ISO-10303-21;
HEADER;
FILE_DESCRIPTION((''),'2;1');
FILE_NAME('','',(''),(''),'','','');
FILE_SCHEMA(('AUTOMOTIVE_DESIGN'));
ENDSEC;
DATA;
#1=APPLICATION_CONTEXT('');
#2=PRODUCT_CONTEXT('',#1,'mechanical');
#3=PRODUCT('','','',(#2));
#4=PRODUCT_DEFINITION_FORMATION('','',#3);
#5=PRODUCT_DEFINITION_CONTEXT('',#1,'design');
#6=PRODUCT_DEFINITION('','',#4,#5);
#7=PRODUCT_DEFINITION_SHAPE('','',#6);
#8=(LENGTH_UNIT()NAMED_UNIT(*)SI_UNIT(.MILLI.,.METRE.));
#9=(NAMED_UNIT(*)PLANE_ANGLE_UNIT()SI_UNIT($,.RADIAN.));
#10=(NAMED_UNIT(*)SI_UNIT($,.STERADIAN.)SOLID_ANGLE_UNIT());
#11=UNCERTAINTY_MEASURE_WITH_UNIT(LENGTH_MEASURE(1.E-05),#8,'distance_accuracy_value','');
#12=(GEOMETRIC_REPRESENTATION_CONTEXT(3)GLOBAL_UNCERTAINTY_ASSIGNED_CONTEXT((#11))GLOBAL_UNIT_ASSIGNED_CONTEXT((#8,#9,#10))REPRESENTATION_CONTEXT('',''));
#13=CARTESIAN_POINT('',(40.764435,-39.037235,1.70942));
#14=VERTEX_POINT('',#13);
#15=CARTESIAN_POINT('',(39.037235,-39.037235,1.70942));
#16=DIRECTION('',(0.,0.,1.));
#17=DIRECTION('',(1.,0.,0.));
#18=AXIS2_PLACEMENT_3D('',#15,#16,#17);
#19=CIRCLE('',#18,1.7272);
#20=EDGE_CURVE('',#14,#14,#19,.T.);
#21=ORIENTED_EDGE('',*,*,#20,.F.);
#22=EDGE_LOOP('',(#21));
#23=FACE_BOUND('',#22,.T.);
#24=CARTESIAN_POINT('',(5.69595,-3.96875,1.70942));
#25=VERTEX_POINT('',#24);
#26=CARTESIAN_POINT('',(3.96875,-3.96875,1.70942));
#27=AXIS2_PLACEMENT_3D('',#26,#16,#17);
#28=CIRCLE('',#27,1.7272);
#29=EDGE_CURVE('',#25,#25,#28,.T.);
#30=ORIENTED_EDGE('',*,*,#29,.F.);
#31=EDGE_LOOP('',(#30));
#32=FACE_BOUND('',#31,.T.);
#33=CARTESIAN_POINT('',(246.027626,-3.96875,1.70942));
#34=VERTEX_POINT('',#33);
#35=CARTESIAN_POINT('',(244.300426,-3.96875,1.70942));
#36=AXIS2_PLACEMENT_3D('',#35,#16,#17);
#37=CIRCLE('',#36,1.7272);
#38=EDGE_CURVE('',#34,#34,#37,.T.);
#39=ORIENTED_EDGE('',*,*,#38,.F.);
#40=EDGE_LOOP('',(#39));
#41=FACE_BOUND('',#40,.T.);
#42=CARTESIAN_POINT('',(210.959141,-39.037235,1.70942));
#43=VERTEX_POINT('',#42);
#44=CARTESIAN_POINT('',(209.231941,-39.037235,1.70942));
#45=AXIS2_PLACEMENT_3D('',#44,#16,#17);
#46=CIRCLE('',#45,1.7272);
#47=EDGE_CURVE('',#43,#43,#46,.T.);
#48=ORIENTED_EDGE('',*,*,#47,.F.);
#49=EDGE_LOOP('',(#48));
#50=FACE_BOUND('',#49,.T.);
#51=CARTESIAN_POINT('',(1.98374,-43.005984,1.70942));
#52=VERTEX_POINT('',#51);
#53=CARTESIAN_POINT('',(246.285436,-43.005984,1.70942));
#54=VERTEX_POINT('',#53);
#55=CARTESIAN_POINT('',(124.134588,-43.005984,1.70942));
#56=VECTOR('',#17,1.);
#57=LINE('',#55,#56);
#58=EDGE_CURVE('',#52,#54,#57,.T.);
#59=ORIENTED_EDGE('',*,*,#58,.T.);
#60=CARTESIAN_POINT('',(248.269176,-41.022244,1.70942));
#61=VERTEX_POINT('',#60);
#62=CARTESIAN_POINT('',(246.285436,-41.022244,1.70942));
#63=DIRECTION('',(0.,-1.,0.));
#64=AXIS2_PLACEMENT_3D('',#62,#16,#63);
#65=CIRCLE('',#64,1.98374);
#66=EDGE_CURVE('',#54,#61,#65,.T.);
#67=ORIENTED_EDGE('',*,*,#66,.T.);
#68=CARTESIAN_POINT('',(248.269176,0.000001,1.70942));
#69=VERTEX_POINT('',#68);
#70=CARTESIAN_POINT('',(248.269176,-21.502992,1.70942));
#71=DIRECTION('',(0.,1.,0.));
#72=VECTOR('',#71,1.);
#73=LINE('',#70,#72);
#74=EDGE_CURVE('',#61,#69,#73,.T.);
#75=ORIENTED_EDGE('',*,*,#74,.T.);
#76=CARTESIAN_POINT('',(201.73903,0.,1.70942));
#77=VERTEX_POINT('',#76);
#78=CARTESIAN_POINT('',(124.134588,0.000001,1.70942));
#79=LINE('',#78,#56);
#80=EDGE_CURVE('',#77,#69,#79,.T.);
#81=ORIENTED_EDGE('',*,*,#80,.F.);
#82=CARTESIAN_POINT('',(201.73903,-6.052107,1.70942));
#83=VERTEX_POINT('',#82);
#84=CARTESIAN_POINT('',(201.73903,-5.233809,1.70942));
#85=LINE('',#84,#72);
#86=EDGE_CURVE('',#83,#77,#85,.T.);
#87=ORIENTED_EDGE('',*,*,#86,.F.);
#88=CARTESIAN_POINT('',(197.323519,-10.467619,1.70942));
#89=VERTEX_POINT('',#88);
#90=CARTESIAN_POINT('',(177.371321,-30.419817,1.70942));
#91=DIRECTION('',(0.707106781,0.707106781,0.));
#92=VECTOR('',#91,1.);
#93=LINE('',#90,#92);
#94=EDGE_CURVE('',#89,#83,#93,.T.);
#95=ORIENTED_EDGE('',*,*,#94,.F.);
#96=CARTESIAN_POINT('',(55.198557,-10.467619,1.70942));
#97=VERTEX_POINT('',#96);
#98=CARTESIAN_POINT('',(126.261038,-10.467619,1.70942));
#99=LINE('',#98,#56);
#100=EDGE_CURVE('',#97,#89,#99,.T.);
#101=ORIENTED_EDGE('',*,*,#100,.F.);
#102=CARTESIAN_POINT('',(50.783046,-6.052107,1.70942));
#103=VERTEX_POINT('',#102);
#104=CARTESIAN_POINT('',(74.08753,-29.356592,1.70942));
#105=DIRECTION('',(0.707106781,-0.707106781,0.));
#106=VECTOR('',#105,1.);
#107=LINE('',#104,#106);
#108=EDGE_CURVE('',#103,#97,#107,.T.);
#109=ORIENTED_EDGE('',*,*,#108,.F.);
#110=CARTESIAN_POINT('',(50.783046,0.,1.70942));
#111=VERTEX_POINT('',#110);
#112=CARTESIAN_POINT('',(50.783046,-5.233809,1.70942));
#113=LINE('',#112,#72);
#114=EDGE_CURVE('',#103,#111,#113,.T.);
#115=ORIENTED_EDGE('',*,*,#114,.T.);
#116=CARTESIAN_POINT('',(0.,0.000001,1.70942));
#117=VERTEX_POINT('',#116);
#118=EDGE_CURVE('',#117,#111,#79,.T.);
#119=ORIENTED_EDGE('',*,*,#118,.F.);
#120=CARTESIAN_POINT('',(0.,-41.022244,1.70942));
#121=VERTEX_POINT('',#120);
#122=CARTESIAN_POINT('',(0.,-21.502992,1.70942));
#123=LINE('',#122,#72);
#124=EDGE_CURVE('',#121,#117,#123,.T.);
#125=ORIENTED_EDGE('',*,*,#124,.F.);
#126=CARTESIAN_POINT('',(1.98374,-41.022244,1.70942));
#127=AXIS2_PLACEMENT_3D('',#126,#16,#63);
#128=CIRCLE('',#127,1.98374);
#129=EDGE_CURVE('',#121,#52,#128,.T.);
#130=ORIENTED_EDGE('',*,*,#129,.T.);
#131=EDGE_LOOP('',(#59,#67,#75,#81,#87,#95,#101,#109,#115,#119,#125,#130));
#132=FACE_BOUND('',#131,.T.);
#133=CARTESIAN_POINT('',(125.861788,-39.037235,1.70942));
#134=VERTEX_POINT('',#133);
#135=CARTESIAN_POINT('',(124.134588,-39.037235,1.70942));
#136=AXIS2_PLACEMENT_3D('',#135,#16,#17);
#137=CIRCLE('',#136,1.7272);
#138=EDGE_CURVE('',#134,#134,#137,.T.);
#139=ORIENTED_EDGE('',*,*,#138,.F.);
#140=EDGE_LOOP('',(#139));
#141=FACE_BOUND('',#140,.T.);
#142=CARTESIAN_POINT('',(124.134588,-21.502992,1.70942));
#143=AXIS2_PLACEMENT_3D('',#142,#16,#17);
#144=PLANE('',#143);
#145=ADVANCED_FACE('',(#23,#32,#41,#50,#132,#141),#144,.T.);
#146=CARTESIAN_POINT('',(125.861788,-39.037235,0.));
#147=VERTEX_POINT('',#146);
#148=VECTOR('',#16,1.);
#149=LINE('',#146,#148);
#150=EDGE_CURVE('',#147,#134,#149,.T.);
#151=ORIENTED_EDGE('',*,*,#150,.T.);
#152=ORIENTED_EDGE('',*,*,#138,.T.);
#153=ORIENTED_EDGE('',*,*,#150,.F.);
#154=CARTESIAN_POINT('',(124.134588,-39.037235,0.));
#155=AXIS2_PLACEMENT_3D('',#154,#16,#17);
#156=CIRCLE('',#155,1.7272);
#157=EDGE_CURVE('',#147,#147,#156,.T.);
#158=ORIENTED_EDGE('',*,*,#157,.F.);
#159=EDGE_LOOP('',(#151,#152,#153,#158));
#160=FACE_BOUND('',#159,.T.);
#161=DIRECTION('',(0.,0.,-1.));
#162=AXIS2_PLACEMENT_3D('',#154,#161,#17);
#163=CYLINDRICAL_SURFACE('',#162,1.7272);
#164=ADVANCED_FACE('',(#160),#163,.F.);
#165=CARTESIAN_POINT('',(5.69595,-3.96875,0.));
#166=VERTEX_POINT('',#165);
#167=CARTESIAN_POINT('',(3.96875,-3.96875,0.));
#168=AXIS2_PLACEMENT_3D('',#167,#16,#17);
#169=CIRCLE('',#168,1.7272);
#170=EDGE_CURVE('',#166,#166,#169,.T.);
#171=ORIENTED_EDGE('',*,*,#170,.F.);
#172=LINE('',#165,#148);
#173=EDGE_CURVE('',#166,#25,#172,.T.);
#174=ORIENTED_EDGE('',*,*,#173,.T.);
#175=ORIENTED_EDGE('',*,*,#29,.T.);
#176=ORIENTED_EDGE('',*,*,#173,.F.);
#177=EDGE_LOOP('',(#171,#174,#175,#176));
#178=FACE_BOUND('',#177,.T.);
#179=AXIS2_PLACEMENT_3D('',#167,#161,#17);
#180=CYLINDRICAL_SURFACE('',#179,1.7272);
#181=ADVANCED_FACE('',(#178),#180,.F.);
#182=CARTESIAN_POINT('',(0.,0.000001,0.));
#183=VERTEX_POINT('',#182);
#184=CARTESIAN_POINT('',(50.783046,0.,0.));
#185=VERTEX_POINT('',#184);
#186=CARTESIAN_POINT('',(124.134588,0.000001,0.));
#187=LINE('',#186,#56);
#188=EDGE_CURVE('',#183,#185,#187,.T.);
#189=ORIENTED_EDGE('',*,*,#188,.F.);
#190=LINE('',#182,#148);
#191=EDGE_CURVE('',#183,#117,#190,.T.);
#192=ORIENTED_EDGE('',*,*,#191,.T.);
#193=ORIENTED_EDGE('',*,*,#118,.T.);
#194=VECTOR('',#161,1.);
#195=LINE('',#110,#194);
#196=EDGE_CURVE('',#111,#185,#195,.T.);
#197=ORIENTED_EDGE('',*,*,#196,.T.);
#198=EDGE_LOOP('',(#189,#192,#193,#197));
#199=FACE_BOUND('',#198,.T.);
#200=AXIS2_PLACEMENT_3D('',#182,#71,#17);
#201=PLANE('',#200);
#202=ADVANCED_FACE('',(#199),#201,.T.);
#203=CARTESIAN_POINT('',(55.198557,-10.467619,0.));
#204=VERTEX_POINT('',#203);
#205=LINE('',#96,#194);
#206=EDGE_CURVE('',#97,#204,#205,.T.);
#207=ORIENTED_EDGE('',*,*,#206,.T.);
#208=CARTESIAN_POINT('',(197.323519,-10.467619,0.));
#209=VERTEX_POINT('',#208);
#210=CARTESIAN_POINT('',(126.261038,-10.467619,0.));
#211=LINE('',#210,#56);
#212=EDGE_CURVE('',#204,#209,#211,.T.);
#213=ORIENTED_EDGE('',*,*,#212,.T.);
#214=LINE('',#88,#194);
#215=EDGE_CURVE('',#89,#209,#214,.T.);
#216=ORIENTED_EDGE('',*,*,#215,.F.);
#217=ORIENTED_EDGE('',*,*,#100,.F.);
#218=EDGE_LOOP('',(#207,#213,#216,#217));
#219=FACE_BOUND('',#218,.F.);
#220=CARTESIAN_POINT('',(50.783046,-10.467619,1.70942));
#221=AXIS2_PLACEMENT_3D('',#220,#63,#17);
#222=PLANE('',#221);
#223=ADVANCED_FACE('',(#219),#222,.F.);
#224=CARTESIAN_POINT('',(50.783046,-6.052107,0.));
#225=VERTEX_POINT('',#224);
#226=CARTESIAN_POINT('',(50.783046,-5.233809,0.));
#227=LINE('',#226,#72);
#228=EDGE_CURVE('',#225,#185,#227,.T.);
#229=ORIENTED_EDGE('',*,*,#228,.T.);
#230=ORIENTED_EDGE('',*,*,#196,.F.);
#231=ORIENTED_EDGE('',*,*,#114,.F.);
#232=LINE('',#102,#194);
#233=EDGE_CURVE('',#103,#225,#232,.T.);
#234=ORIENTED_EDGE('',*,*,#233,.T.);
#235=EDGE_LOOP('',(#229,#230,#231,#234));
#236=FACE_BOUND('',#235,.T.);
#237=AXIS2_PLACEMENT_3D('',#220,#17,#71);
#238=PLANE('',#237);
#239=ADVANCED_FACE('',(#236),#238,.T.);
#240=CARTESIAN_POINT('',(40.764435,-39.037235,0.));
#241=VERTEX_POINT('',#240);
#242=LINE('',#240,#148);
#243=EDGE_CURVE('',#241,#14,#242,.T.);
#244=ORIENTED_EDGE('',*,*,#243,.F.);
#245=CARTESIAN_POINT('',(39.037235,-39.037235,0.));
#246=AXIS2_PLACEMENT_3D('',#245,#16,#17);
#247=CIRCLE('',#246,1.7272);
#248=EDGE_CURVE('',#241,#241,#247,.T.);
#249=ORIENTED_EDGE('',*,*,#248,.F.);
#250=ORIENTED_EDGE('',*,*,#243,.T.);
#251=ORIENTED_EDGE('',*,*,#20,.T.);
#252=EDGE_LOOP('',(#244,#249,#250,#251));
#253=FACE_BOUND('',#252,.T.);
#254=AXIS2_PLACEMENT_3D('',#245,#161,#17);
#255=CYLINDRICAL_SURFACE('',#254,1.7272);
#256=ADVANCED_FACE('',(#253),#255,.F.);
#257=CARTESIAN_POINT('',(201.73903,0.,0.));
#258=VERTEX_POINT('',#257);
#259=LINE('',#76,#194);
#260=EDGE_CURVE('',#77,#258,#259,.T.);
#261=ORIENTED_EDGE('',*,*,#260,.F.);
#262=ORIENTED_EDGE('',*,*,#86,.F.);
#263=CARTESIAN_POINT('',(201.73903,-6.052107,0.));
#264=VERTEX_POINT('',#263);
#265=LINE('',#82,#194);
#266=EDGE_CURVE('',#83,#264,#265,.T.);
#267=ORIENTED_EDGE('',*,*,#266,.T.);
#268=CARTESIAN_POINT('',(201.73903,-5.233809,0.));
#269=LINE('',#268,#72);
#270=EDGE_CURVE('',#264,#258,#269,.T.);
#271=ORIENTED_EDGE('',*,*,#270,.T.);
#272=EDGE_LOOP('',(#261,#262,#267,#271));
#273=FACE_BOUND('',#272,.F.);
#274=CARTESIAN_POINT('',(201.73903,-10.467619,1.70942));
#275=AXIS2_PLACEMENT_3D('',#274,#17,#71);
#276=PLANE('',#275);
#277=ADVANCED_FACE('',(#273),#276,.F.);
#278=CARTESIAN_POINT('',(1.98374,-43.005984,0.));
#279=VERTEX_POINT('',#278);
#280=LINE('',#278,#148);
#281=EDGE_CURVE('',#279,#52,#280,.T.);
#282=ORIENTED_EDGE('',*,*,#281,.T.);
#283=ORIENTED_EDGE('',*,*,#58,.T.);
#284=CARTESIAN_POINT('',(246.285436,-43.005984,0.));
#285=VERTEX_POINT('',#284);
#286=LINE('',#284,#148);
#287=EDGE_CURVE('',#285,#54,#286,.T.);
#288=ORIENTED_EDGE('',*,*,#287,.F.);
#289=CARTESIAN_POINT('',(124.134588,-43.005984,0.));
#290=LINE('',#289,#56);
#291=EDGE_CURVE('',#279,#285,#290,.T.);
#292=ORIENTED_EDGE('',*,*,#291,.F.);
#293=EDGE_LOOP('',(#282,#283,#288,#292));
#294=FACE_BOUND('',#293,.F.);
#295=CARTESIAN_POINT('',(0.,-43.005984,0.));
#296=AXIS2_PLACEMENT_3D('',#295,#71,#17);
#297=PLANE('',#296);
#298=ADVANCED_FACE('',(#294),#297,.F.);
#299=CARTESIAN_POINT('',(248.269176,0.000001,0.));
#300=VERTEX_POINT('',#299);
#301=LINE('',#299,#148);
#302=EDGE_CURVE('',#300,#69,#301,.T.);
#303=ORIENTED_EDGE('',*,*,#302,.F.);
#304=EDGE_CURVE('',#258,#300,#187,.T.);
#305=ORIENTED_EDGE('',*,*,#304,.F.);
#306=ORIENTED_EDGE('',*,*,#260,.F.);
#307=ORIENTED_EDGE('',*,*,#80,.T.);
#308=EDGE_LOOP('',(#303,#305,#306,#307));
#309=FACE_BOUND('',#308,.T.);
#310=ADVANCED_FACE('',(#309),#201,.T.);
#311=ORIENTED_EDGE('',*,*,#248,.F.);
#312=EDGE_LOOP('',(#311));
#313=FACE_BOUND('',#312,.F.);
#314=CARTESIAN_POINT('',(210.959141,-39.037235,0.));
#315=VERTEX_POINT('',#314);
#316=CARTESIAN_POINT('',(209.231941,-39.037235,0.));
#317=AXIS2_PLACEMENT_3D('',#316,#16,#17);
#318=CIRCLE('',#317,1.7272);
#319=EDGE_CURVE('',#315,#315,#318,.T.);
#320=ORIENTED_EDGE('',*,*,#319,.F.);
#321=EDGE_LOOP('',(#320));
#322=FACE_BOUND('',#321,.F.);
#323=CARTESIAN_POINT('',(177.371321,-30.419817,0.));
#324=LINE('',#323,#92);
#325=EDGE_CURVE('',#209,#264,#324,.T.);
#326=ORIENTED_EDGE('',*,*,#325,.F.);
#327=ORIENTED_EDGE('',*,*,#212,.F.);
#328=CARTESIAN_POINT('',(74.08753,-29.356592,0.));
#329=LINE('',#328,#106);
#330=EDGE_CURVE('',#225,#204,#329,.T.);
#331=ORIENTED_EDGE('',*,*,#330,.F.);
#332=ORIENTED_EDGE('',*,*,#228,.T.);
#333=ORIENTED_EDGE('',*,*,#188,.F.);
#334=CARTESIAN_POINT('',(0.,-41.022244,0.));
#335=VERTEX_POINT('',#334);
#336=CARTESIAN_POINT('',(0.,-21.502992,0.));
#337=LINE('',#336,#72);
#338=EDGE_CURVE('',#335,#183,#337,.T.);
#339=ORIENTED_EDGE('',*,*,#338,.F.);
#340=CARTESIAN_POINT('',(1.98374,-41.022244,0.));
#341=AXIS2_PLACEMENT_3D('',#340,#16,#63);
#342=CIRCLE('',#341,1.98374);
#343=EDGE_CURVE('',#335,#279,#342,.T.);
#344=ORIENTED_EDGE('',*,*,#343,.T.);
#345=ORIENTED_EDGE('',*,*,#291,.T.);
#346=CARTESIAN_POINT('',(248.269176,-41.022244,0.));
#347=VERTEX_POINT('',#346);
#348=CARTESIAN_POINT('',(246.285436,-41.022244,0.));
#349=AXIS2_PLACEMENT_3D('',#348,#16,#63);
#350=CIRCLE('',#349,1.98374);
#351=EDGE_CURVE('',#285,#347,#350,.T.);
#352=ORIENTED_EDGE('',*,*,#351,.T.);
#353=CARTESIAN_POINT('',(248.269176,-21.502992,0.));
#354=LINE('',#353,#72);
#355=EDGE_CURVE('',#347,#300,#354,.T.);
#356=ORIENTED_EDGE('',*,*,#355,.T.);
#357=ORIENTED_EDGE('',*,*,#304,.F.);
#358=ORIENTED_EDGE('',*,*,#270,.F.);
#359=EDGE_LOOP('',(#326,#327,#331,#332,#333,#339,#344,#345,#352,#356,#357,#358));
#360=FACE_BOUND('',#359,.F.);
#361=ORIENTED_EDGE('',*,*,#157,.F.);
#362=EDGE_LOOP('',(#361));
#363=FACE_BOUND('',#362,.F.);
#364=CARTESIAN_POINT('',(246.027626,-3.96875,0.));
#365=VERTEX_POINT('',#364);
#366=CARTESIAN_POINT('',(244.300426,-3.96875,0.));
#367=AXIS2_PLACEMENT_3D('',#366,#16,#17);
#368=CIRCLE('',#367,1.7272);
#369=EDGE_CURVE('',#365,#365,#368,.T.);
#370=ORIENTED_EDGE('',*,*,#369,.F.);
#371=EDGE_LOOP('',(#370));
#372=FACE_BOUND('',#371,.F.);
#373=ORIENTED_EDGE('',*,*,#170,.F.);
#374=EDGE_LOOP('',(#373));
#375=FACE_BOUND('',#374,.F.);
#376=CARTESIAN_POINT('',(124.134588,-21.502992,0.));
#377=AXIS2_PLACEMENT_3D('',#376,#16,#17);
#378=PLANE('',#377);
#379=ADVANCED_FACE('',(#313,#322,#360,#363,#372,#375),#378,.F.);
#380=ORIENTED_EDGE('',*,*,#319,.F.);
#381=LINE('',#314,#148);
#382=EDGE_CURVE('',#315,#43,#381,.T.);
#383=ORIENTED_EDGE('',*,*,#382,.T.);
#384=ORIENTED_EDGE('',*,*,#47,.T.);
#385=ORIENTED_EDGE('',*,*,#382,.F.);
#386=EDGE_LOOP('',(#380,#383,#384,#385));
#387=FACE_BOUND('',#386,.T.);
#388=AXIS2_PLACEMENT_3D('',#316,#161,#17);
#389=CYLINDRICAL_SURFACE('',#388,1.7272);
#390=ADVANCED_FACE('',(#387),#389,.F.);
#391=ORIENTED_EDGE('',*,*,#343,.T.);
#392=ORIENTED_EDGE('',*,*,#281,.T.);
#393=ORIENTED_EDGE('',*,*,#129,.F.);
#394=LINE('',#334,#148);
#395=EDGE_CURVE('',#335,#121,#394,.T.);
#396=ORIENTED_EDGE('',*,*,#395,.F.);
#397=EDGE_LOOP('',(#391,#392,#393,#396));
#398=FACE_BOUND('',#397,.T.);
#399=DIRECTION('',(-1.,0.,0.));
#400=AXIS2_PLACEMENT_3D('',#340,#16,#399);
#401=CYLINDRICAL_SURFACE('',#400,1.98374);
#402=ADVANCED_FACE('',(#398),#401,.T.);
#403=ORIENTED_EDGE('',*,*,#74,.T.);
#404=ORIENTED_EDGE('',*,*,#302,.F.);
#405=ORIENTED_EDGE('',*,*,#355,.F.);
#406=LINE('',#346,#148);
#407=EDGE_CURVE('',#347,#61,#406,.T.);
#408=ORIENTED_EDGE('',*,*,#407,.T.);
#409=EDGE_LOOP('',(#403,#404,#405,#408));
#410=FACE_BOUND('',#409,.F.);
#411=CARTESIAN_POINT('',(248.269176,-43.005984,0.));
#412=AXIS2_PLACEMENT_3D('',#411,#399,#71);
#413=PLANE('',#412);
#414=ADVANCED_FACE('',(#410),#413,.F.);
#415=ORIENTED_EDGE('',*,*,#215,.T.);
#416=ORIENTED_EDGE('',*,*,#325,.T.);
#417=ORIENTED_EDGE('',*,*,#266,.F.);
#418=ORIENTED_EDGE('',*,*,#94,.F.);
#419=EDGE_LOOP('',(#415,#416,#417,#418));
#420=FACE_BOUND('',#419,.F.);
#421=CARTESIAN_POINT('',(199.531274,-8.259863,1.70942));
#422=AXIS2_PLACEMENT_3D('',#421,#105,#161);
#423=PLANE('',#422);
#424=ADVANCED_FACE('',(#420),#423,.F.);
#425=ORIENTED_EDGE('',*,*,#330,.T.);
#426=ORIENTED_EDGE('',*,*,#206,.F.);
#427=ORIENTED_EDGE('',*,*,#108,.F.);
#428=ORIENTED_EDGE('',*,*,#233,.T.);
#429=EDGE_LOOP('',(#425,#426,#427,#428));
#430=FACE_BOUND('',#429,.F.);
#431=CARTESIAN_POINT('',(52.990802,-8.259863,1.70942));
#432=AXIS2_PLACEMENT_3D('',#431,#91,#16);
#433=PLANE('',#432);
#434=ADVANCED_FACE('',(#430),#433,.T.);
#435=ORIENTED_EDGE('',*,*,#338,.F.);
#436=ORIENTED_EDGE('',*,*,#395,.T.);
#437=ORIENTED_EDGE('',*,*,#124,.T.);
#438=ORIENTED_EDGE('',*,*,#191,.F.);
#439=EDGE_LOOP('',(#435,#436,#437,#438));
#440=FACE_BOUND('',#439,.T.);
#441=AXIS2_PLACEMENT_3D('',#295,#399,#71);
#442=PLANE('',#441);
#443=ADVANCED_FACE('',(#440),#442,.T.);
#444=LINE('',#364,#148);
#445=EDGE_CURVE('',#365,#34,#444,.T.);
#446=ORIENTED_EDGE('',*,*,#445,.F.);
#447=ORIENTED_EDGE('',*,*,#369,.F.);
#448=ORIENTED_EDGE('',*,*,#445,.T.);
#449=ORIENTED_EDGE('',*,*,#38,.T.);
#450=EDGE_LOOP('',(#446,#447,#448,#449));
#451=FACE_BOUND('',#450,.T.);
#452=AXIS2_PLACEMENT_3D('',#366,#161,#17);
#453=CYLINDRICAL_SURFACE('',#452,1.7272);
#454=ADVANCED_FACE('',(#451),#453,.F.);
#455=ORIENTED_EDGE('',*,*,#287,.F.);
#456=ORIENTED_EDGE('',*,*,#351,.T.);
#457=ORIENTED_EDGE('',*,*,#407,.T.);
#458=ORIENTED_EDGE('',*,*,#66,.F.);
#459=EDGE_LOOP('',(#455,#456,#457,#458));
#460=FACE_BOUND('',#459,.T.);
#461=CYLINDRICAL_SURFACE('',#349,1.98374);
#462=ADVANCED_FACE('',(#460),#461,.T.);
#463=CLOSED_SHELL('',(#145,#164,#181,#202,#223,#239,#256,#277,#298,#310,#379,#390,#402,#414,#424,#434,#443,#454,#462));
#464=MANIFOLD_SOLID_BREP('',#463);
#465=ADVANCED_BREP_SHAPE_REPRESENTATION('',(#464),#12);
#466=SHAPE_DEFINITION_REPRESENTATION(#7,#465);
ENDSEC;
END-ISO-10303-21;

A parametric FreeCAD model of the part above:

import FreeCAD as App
import Part
import Sketcher
from FreeCAD import Vector
Q = App.Units.Quantity


def edges_at(feature, points):
    """Names of the edges that pass closest to the given points."""
    edges = feature.Shape.Edges
    near = lambda p: min(range(len(edges)), key=lambda i: edges[i].distToShape(Part.Vertex(*p))[0])
    return sorted({f"Edge{near(p) + 1}" for p in points})


def add_polygon(sketch, points):
    """Adds a closed chain of lines whose ends are joined by coincident constraints."""
    first, n = sketch.GeometryCount, len(points)
    for a, b in zip(points, points[1:] + points[:1]):
        sketch.addGeometry(Part.LineSegment(App.Vector(*a, 0), App.Vector(*b, 0)), False)
    for i in range(n):
        sketch.addConstraint(Sketcher.Constraint("Coincident", first + i, 2, first + (i + 1) % n, 1))

doc = App.newDocument("Part")
body = doc.addObject("PartDesign::Body", "Body")

sketch1 = body.newObject("Sketcher::SketchObject", "Sketch")
sketch1.AttachmentSupport = (doc.getObject("XY_Plane"), [""])
sketch1.MapMode = "FlatFace"
add_polygon(sketch1, [(0, 0), (0, -43), (248.3, -43), (248.3, 0)])
sketch1.addGeometry(Part.Circle(Vector(39, -39, 0), Vector(0, 0, 1), 1.7), False)
sketch1.addGeometry(Part.Circle(Vector(124.1, -39, 0), Vector(0, 0, 1), 1.7), False)
sketch1.addGeometry(Part.Circle(Vector(209.2, -39, 0), Vector(0, 0, 1), 1.7), False)
sketch1.addGeometry(Part.Circle(Vector(4, -4, 0), Vector(0, 0, 1), 1.7), False)
sketch1.addGeometry(Part.Circle(Vector(244.3, -4, 0), Vector(0, 0, 1), 1.7), False)
sketch1.addConstraint(Sketcher.Constraint("Vertical", 0))
sketch1.addConstraint(Sketcher.Constraint("Horizontal", 1))
sketch1.addConstraint(Sketcher.Constraint("Vertical", 2))
sketch1.addConstraint(Sketcher.Constraint("Horizontal", 3))
sketch1.addConstraint(Sketcher.Constraint("Coincident", 3, 2, -1, 1))
sketch1.addConstraint(Sketcher.Constraint("Equal", 4, 5))
sketch1.addConstraint(Sketcher.Constraint("Equal", 5, 6))
sketch1.addConstraint(Sketcher.Constraint("Equal", 6, 7))
sketch1.addConstraint(Sketcher.Constraint("Equal", 7, 8))
sketch1.addConstraint(Sketcher.Constraint("Horizontal", 4, 3, 5, 3))
sketch1.addConstraint(Sketcher.Constraint("Horizontal", 5, 3, 6, 3))
sketch1.addConstraint(Sketcher.Constraint("Horizontal", 7, 3, 8, 3))
sketch1.addConstraint(Sketcher.Constraint("Diameter", 4, Q("0.136 in")))
sketch1.addConstraint(Sketcher.Constraint("DistanceX", -1, 1, 7, 3, Q("0.15625 in")))
sketch1.addConstraint(Sketcher.Constraint("DistanceY", 7, 3, -1, 1, Q("0.15625 in")))
sketch1.addConstraint(Sketcher.Constraint("DistanceY", 0, 2, 4, 3, Q("0.15625 in")))
sketch1.addConstraint(Sketcher.Constraint("DistanceX", 8, 3, 1, 2, Q("0.15625 in")))
sketch1.addConstraint(Sketcher.Constraint("DistanceX", 1, 1, 1, 2, Q("248.269176 mm")))
sketch1.addConstraint(Sketcher.Constraint("DistanceY", 0, 2, 0, 1, Q("43.005985 mm")))
sketch1.addConstraint(Sketcher.Constraint("DistanceX", -1, 1, 6, 3, Q("209.231941 mm")))
sketch1.addConstraint(Sketcher.Constraint("DistanceX", 4, 3, 8, 3, Q("205.263191 mm")))
sketch1.addConstraint(Sketcher.Constraint("DistanceX", -1, 1, 5, 3, Q("124.134588 mm")))
pad1 = body.newObject("PartDesign::Pad", "Pad")
pad1.Profile = sketch1
pad1.Length = Q("0.0673 in")
doc.recompute()

fillet = body.newObject("PartDesign::Fillet", "Fillet")
fillet.Base = (pad1, edges_at(pad1, [(0, -43.006, 0.855), (248.269, -43.006, 0.855)]))
fillet.Radius = Q("0.0781 in")

sketch2 = body.newObject("Sketcher::SketchObject", "Sketch001")
sketch2.AttachmentSupport = (doc.getObject("XY_Plane"), [""])
sketch2.MapMode = "FlatFace"
sketch2.AttachmentOffset = App.Placement(Vector(0, 0, 0.0673 * 25.4), App.Rotation())
add_polygon(sketch2, [(51, 0), (51, -10), (202, -10), (202, 0)])
sketch2.addConstraint(Sketcher.Constraint("Vertical", 0))
sketch2.addConstraint(Sketcher.Constraint("Horizontal", 1))
sketch2.addConstraint(Sketcher.Constraint("Vertical", 2))
sketch2.addConstraint(Sketcher.Constraint("Horizontal", 3))
sketch2.addConstraint(Sketcher.Constraint("PointOnObject", 2, 2, -1))
sketch2.addConstraint(Sketcher.Constraint("DistanceY", 0, 2, 0, 1, Q("10.467619 mm")))
sketch2.addConstraint(Sketcher.Constraint("DistanceX", 1, 1, 1, 2, Q("150.955984 mm")))
sketch2.addConstraint(Sketcher.Constraint("DistanceX", -1, 1, 1, 2, Q("201.73903 mm")))
pocket1 = body.newObject("PartDesign::Pocket", "Pocket")
pocket1.Profile = sketch2
pocket1.Type = "ThroughAll"
doc.recompute()

chamfer = body.newObject("PartDesign::Chamfer", "Chamfer")
chamfer.Base = (pocket1, edges_at(pocket1, [(50.783, -10.468, 0.855), (201.739, -10.468, 0.855)]))
chamfer.Size = 4.415511

doc.recompute()
